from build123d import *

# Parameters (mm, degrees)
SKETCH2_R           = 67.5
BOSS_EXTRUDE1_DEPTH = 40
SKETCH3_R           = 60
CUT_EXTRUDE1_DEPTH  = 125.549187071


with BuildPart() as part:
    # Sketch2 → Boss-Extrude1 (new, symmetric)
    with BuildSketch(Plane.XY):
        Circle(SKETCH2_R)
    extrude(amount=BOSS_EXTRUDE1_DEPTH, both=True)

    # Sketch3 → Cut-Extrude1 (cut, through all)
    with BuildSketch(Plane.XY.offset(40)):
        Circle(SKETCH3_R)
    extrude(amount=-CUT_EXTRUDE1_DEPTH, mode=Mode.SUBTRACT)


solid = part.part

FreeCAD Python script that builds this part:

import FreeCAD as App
import Part
import Sketcher
from FreeCAD import Vector
Q = App.Units.Quantity

doc = App.newDocument("Part")
body = doc.addObject("PartDesign::Body", "Body")

# Sketch on XY plane
sketch1 = body.newObject("Sketcher::SketchObject", "Sketch")
sketch1.AttachmentSupport = (doc.getObject("XY_Plane"), [""])
sketch1.MapMode = "FlatFace"
sketch1.addGeometry(Part.Circle(Vector(0, 0, 0), Vector(0, 0, 1), 68), False)
sketch1.addConstraint([
    Sketcher.Constraint("Coincident", 0, 3, -1, 1),
    Sketcher.Constraint("Diameter", 0, Q("135 mm")),
])
pad1 = body.newObject("PartDesign::Pad", "Pad")
pad1.Profile = sketch1
pad1.Length = 80
pad1.Midplane = True

# Sketch on XY plane
sketch2 = body.newObject("Sketcher::SketchObject", "Sketch001")
sketch2.AttachmentSupport = (doc.getObject("XY_Plane"), [""])
sketch2.MapMode = "FlatFace"
sketch2.AttachmentOffset = App.Placement(Vector(0, 0, 40), App.Rotation())
sketch2.addGeometry(Part.Circle(Vector(0, 0, 0), Vector(0, 0, 1), 60), False)
sketch2.addConstraint([
    Sketcher.Constraint("Coincident", 0, 3, -1, 1),
    Sketcher.Constraint("Diameter", 0, Q("120 mm")),
])
pocket1 = body.newObject("PartDesign::Pocket", "Pocket")
pocket1.Profile = sketch2
pocket1.Type = "ThroughAll"

doc.recompute()
